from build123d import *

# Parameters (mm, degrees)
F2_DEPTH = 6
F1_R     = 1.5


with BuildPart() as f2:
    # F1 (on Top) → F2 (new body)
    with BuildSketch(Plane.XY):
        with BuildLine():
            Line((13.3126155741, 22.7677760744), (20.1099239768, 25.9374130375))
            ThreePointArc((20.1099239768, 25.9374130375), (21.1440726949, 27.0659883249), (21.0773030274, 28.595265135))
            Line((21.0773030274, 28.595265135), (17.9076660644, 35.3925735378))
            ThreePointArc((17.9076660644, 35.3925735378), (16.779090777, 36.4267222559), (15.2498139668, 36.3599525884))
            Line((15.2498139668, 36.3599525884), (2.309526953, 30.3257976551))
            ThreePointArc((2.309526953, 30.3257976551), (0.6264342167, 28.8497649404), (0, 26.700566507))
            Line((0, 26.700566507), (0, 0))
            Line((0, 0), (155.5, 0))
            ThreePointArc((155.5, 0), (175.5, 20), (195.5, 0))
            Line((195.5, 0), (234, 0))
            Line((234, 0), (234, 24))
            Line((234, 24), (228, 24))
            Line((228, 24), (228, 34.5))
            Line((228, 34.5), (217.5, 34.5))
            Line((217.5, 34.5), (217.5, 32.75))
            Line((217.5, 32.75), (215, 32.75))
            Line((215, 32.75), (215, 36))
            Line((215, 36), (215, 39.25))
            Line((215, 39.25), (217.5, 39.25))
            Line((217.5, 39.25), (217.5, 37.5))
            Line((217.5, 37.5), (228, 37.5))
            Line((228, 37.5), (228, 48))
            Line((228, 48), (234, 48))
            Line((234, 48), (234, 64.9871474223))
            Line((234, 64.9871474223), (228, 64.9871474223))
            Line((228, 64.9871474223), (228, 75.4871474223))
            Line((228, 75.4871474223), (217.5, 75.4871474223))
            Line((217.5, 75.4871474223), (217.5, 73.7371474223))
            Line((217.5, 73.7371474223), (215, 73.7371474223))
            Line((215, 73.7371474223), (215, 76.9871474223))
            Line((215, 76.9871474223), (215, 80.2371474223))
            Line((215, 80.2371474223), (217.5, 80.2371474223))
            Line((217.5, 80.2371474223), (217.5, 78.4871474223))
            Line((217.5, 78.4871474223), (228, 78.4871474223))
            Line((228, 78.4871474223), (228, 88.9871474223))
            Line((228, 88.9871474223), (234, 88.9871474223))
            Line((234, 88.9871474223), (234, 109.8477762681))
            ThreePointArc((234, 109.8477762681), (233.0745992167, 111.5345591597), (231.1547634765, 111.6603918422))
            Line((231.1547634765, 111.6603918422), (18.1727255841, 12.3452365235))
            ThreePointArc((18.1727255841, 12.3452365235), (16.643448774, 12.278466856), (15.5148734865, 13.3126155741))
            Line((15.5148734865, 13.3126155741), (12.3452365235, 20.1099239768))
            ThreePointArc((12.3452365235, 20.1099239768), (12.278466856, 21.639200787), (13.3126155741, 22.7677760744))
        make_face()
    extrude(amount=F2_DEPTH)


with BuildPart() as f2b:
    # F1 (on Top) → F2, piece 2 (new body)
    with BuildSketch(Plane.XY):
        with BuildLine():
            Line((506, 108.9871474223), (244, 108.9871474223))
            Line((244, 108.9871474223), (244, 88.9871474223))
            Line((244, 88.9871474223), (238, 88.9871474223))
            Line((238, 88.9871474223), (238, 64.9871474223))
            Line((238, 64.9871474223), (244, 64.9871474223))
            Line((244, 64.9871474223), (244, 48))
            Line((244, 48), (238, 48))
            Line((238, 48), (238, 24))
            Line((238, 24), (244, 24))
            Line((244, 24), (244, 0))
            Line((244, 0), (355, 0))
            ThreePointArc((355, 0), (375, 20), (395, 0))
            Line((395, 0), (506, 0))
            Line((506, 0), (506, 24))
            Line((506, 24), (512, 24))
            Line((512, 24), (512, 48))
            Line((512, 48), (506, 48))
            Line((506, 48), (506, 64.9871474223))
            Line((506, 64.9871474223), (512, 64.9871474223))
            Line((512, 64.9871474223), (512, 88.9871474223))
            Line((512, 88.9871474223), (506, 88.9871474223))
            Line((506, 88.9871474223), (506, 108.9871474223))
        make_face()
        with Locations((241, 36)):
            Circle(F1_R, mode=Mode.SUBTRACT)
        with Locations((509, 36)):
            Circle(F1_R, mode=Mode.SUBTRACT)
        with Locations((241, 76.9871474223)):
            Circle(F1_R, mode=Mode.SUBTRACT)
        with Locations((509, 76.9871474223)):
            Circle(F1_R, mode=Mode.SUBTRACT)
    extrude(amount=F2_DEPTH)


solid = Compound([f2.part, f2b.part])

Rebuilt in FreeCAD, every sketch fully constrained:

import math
import FreeCAD as App
import Part
import Sketcher

V = App.Vector
Q = App.Units.Quantity

doc = App.newDocument("Part")
body = doc.addObject("PartDesign::Body", "Body")

# Sketch on XY plane
sketch1 = doc.addObject("Sketcher::SketchObject", "Sketch")
body.addObject(sketch1)
sketch1.AttachmentSupport = (doc.XY_Plane, [""])
sketch1.MapMode = "FlatFace"
sketch1.addGeometry([
    Part.LineSegment(V(13.312616, 22.767776, 0), V(20.109924, 25.937413, 0)),  # 0
    Part.ArcOfCircle(Part.Circle(V(19.264687, 27.750029, 0), V(0, 0, 1), 2), math.radians(-65), math.radians(25)),  # 1
    Part.LineSegment(V(21.077303, 28.595265, 0), V(17.907666, 35.392574, 0)),  # 2
    Part.ArcOfCircle(Part.Circle(V(16.09505, 34.547337, 0), V(0, 0, 1), 2), math.radians(25), math.radians(115)),  # 3
    Part.LineSegment(V(15.249814, 36.359953, 0), V(2.309527, 30.325798, 0)),  # 4
    Part.ArcOfCircle(Part.Circle(V(4, 26.700567, 0), V(0, 0, 1), 4), math.radians(115), math.radians(180)),  # 5
    Part.LineSegment(V(0, 26.700567, 0), V(0, 0, 0)),  # 6
    Part.LineSegment(V(0, 0, 0), V(155.5, 0, 0)),  # 7
    Part.ArcOfCircle(Part.Circle(V(175.5, 0, 0), V(0, 0, 1), 20), math.radians(0), math.radians(180)),  # 8
    Part.LineSegment(V(195.5, 0, 0), V(234, 0, 0)),  # 9
    Part.LineSegment(V(234, 0, 0), V(234, 24, 0)),  # 10
    Part.LineSegment(V(234, 24, 0), V(228, 24, 0)),  # 11
    Part.LineSegment(V(228, 24, 0), V(228, 34.5, 0)),  # 12
    Part.LineSegment(V(228, 34.5, 0), V(217.5, 34.5, 0)),  # 13
    Part.LineSegment(V(217.5, 34.5, 0), V(217.5, 32.75, 0)),  # 14
    Part.LineSegment(V(217.5, 32.75, 0), V(215, 32.75, 0)),  # 15
    Part.LineSegment(V(215, 32.75, 0), V(215, 39.25, 0)),  # 16
    Part.LineSegment(V(215, 39.25, 0), V(217.5, 39.25, 0)),  # 17
    Part.LineSegment(V(217.5, 39.25, 0), V(217.5, 37.5, 0)),  # 18
    Part.LineSegment(V(217.5, 37.5, 0), V(228, 37.5, 0)),  # 19
    Part.LineSegment(V(228, 37.5, 0), V(228, 48, 0)),  # 20
    Part.LineSegment(V(228, 48, 0), V(234, 48, 0)),  # 21
    Part.LineSegment(V(234, 48, 0), V(234, 64.987147, 0)),  # 22
    Part.LineSegment(V(234, 64.987147, 0), V(228, 64.987147, 0)),  # 23
    Part.LineSegment(V(228, 64.987147, 0), V(228, 75.487147, 0)),  # 24
    Part.LineSegment(V(228, 75.487147, 0), V(217.5, 75.487147, 0)),  # 25
    Part.LineSegment(V(217.5, 75.487147, 0), V(217.5, 73.737147, 0)),  # 26
    Part.LineSegment(V(217.5, 73.737147, 0), V(215, 73.737147, 0)),  # 27
    Part.LineSegment(V(215, 73.737147, 0), V(215, 80.237147, 0)),  # 28
    Part.LineSegment(V(215, 80.237147, 0), V(217.5, 80.237147, 0)),  # 29
    Part.LineSegment(V(217.5, 80.237147, 0), V(217.5, 78.487147, 0)),  # 30
    Part.LineSegment(V(217.5, 78.487147, 0), V(228, 78.487147, 0)),  # 31
    Part.LineSegment(V(228, 78.487147, 0), V(228, 88.987147, 0)),  # 32
    Part.LineSegment(V(228, 88.987147, 0), V(234, 88.987147, 0)),  # 33
    Part.LineSegment(V(234, 88.987147, 0), V(234, 109.847776, 0)),  # 34
    Part.ArcOfCircle(Part.Circle(V(232, 109.847776, 0), V(0, 0, 1), 2), math.radians(0), math.radians(115)),  # 35
    Part.LineSegment(V(231.154763, 111.660392, 0), V(18.172726, 12.345237, 0)),  # 36
    Part.ArcOfCircle(Part.Circle(V(17.327489, 14.157852, 0), V(0, 0, 1), 2), math.radians(-155), math.radians(-65)),  # 37
    Part.LineSegment(V(15.514873, 13.312616, 0), V(12.345237, 20.109924, 0)),  # 38
    Part.ArcOfCircle(Part.Circle(V(14.157852, 20.955161, 0), V(0, 0, 1), 2), math.radians(115), math.radians(205)),  # 39
], False)
sketch1.addConstraint([
    Sketcher.Constraint("Tangent", 0, 2, 1, 1),
    Sketcher.Constraint("Tangent", 1, 2, 2, 1),
    Sketcher.Constraint("Tangent", 2, 2, 3, 1),
    Sketcher.Constraint("Tangent", 3, 2, 4, 1),
    Sketcher.Constraint("Tangent", 4, 2, 5, 1),
    Sketcher.Constraint("Tangent", 5, 2, 6, 1),
    Sketcher.Constraint("Coincident", 6, 2, 7, 1),
    Sketcher.Constraint("Coincident", 7, 2, 8, 2),
    Sketcher.Constraint("Coincident", 8, 1, 9, 1),
    Sketcher.Constraint("Coincident", 9, 2, 10, 1),
    Sketcher.Constraint("Coincident", 10, 2, 11, 1),
    Sketcher.Constraint("Coincident", 11, 2, 12, 1),
    Sketcher.Constraint("Coincident", 12, 2, 13, 1),
    Sketcher.Constraint("Coincident", 13, 2, 14, 1),
    Sketcher.Constraint("Coincident", 14, 2, 15, 1),
    Sketcher.Constraint("Coincident", 15, 2, 16, 1),
    Sketcher.Constraint("Coincident", 16, 2, 17, 1),
    Sketcher.Constraint("Coincident", 17, 2, 18, 1),
    Sketcher.Constraint("Coincident", 18, 2, 19, 1),
    Sketcher.Constraint("Coincident", 19, 2, 20, 1),
    Sketcher.Constraint("Coincident", 20, 2, 21, 1),
    Sketcher.Constraint("Coincident", 21, 2, 22, 1),
    Sketcher.Constraint("Coincident", 22, 2, 23, 1),
    Sketcher.Constraint("Coincident", 23, 2, 24, 1),
    Sketcher.Constraint("Coincident", 24, 2, 25, 1),
    Sketcher.Constraint("Coincident", 25, 2, 26, 1),
    Sketcher.Constraint("Coincident", 26, 2, 27, 1),
    Sketcher.Constraint("Coincident", 27, 2, 28, 1),
    Sketcher.Constraint("Coincident", 28, 2, 29, 1),
    Sketcher.Constraint("Coincident", 29, 2, 30, 1),
    Sketcher.Constraint("Coincident", 30, 2, 31, 1),
    Sketcher.Constraint("Coincident", 31, 2, 32, 1),
    Sketcher.Constraint("Coincident", 32, 2, 33, 1),
    Sketcher.Constraint("Coincident", 33, 2, 34, 1),
    Sketcher.Constraint("Tangent", 34, 2, 35, 1),
    Sketcher.Constraint("Tangent", 35, 2, 36, 1),
    Sketcher.Constraint("Tangent", 36, 2, 37, 2),
    Sketcher.Constraint("Tangent", 37, 1, 38, 1),
    Sketcher.Constraint("Tangent", 38, 2, 39, 2),
    Sketcher.Constraint("Tangent", 39, 1, 0, 1),
    Sketcher.Constraint("Vertical", 6),
    Sketcher.Constraint("Horizontal", 7),
    Sketcher.Constraint("Horizontal", 9),
    Sketcher.Constraint("Vertical", 10),
    Sketcher.Constraint("Horizontal", 11),
    Sketcher.Constraint("Vertical", 12),
    Sketcher.Constraint("Horizontal", 13),
    Sketcher.Constraint("Vertical", 14),
    Sketcher.Constraint("Horizontal", 15),
    Sketcher.Constraint("Vertical", 16),
    Sketcher.Constraint("Horizontal", 17),
    Sketcher.Constraint("Vertical", 18),
    Sketcher.Constraint("Horizontal", 19),
    Sketcher.Constraint("Vertical", 20),
    Sketcher.Constraint("Horizontal", 21),
    Sketcher.Constraint("Vertical", 22),
    Sketcher.Constraint("Horizontal", 23),
    Sketcher.Constraint("Vertical", 24),
    Sketcher.Constraint("Horizontal", 25),
    Sketcher.Constraint("Vertical", 26),
    Sketcher.Constraint("Horizontal", 27),
    Sketcher.Constraint("Vertical", 28),
    Sketcher.Constraint("Horizontal", 29),
    Sketcher.Constraint("Vertical", 30),
    Sketcher.Constraint("Horizontal", 31),
    Sketcher.Constraint("Vertical", 32),
    Sketcher.Constraint("Horizontal", 33),
    Sketcher.Constraint("Vertical", 34),
    Sketcher.Constraint("Coincident", 6, 2, -1, 1),
    Sketcher.Constraint("Equal", 1, 3),
    Sketcher.Constraint("Equal", 3, 35),
    Sketcher.Constraint("Equal", 35, 37),
    Sketcher.Constraint("Equal", 37, 39),
    Sketcher.Constraint("PointOnObject", 8, 3, -1),
    Sketcher.Constraint("PointOnObject", 8, 1, -1),
    Sketcher.Constraint("Perpendicular", 0, 2),
    Sketcher.Constraint("Perpendicular", 2, 4),
    Sketcher.Constraint("Parallel", 4, 36),
    Sketcher.Constraint("Perpendicular", 36, 38),
    Sketcher.Constraint("Vertical", 14, 2, 17, 2),
    Sketcher.Constraint("Vertical", 12, 2, 19, 2),
    Sketcher.Constraint("Vertical", 10, 2, 21, 2),
    Sketcher.Constraint("Vertical", 20, 2, 23, 2),
    Sketcher.Constraint("Vertical", 18, 2, 25, 2),
    Sketcher.Constraint("Vertical", 16, 2, 27, 2),
    Sketcher.Constraint("Vertical", 26, 2, 29, 2),
    Sketcher.Constraint("Vertical", 24, 2, 31, 2),
    Sketcher.Constraint("Vertical", 22, 2, 33, 2),
    Sketcher.Constraint("Equal", 31, 12),
    Sketcher.Constraint("Equal", 14, 18),
    Sketcher.Constraint("Equal", 12, 20),
    Sketcher.Constraint("Equal", 20, 24),
    Sketcher.Constraint("Equal", 18, 26),
    Sketcher.Constraint("Equal", 16, 28),
    Sketcher.Constraint("Equal", 26, 30),
    Sketcher.Constraint("Equal", 24, 32),
    Sketcher.Constraint("Equal", 0, 2),
    Sketcher.Constraint("Equal", 2, 38),
    Sketcher.Constraint("Radius", 1, 2.0),
    Sketcher.Constraint("Radius", 5, 4.0),
    Sketcher.Constraint("Radius", 8, 20.0),
    Sketcher.Constraint("DistanceX", 11, 2, 11, 1, 6.0),
    Sketcher.Constraint("DistanceY", 10, 1, 10, 2, 24.0),
    Sketcher.Constraint("Angle", 0, Q("25 deg")),
    Sketcher.Constraint("DistanceX", 7, 1, 7, 2, 155.5),
    Sketcher.Constraint("DistanceX", 9, 1, 9, 2, 38.5),
    Sketcher.Constraint("DistanceX", 13, 2, 13, 1, 10.5),
    Sketcher.Constraint("DistanceX", 15, 2, 15, 1, 2.5),
    Sketcher.Constraint("DistanceY", 16, 1, 16, 2, 6.5),
    Sketcher.Constraint("DistanceY", -1, 1, 20, 2, 48.0),
    Sketcher.Constraint("Distance", 0, 7.5),
    Sketcher.Constraint("DistanceY", 34, 1, 34, 2, 20.860629),
    Sketcher.Constraint("DistanceY", 6, 2, 6, 1, 26.700567),
    Sketcher.Constraint("DistanceY", -1, 1, 1, 3, 27.750029),
])
pad1 = doc.addObject("PartDesign::Pad", "Pad")
body.addObject(pad1)
pad1.Profile = sketch1
pad1.Length = 6
body2 = doc.addObject("PartDesign::Body", "Body001")

# Sketch on XY plane
sketch2 = doc.addObject("Sketcher::SketchObject", "Sketch001")
body2.addObject(sketch2)
sketch2.AttachmentSupport = (doc.getObject("XY_Plane001"), [""])
sketch2.MapMode = "FlatFace"
sketch2.addGeometry([
    Part.LineSegment(V(506, 108.987147, 0), V(244, 108.987147, 0)),  # 0
    Part.LineSegment(V(244, 108.987147, 0), V(244, 88.987147, 0)),  # 1
    Part.LineSegment(V(244, 88.987147, 0), V(238, 88.987147, 0)),  # 2
    Part.LineSegment(V(238, 88.987147, 0), V(238, 64.987147, 0)),  # 3
    Part.LineSegment(V(238, 64.987147, 0), V(244, 64.987147, 0)),  # 4
    Part.LineSegment(V(244, 64.987147, 0), V(244, 48, 0)),  # 5
    Part.LineSegment(V(244, 48, 0), V(238, 48, 0)),  # 6
    Part.LineSegment(V(238, 48, 0), V(238, 24, 0)),  # 7
    Part.LineSegment(V(238, 24, 0), V(244, 24, 0)),  # 8
    Part.LineSegment(V(244, 24, 0), V(244, 0, 0)),  # 9
    Part.LineSegment(V(244, 0, 0), V(355, 0, 0)),  # 10
    Part.ArcOfCircle(Part.Circle(V(375, 0, 0), V(0, 0, 1), 20), math.radians(0), math.radians(180)),  # 11
    Part.LineSegment(V(395, 0, 0), V(506, 0, 0)),  # 12
    Part.LineSegment(V(506, 0, 0), V(506, 24, 0)),  # 13
    Part.LineSegment(V(506, 24, 0), V(512, 24, 0)),  # 14
    Part.LineSegment(V(512, 24, 0), V(512, 48, 0)),  # 15
    Part.LineSegment(V(512, 48, 0), V(506, 48, 0)),  # 16
    Part.LineSegment(V(506, 48, 0), V(506, 64.987147, 0)),  # 17
    Part.LineSegment(V(506, 64.987147, 0), V(512, 64.987147, 0)),  # 18
    Part.LineSegment(V(512, 64.987147, 0), V(512, 88.987147, 0)),  # 19
    Part.LineSegment(V(512, 88.987147, 0), V(506, 88.987147, 0)),  # 20
    Part.LineSegment(V(506, 88.987147, 0), V(506, 108.987147, 0)),  # 21
    Part.Circle(V(241, 36, 0), V(0, 0, 1), 1.5),  # 22
    Part.Circle(V(509, 36, 0), V(0, 0, 1), 1.5),  # 23
    Part.Circle(V(241, 76.987147, 0), V(0, 0, 1), 1.5),  # 24
    Part.Circle(V(509, 76.987147, 0), V(0, 0, 1), 1.5),  # 25
], False)
sketch2.addConstraint([
    Sketcher.Constraint("Coincident", 0, 2, 1, 1),
    Sketcher.Constraint("Coincident", 1, 2, 2, 1),
    Sketcher.Constraint("Coincident", 2, 2, 3, 1),
    Sketcher.Constraint("Coincident", 3, 2, 4, 1),
    Sketcher.Constraint("Coincident", 4, 2, 5, 1),
    Sketcher.Constraint("Coincident", 5, 2, 6, 1),
    Sketcher.Constraint("Coincident", 6, 2, 7, 1),
    Sketcher.Constraint("Coincident", 7, 2, 8, 1),
    Sketcher.Constraint("Coincident", 8, 2, 9, 1),
    Sketcher.Constraint("Coincident", 9, 2, 10, 1),
    Sketcher.Constraint("Coincident", 10, 2, 11, 2),
    Sketcher.Constraint("Coincident", 11, 1, 12, 1),
    Sketcher.Constraint("Coincident", 12, 2, 13, 1),
    Sketcher.Constraint("Coincident", 13, 2, 14, 1),
    Sketcher.Constraint("Coincident", 14, 2, 15, 1),
    Sketcher.Constraint("Coincident", 15, 2, 16, 1),
    Sketcher.Constraint("Coincident", 16, 2, 17, 1),
    Sketcher.Constraint("Coincident", 17, 2, 18, 1),
    Sketcher.Constraint("Coincident", 18, 2, 19, 1),
    Sketcher.Constraint("Coincident", 19, 2, 20, 1),
    Sketcher.Constraint("Coincident", 20, 2, 21, 1),
    Sketcher.Constraint("Coincident", 21, 2, 0, 1),
    Sketcher.Constraint("Horizontal", 0),
    Sketcher.Constraint("Vertical", 1),
    Sketcher.Constraint("Horizontal", 2),
    Sketcher.Constraint("Vertical", 3),
    Sketcher.Constraint("Horizontal", 4),
    Sketcher.Constraint("Vertical", 5),
    Sketcher.Constraint("Horizontal", 6),
    Sketcher.Constraint("Vertical", 7),
    Sketcher.Constraint("Horizontal", 8),
    Sketcher.Constraint("Vertical", 9),
    Sketcher.Constraint("Horizontal", 10),
    Sketcher.Constraint("Horizontal", 12),
    Sketcher.Constraint("Vertical", 13),
    Sketcher.Constraint("Horizontal", 14),
    Sketcher.Constraint("Vertical", 15),
    Sketcher.Constraint("Horizontal", 16),
    Sketcher.Constraint("Vertical", 17),
    Sketcher.Constraint("Horizontal", 18),
    Sketcher.Constraint("Vertical", 19),
    Sketcher.Constraint("Horizontal", 20),
    Sketcher.Constraint("Vertical", 21),
    Sketcher.Constraint("Equal", 22, 23),
    Sketcher.Constraint("Equal", 23, 24),
    Sketcher.Constraint("Equal", 24, 25),
    Sketcher.Constraint("PointOnObject", 11, 3, -1),
    Sketcher.Constraint("PointOnObject", 9, 2, -1),
    Sketcher.Constraint("PointOnObject", 11, 1, -1),
    Sketcher.Constraint("Horizontal", 22, 3, 23, 3),
    Sketcher.Constraint("Horizontal", 24, 3, 25, 3),
    Sketcher.Constraint("Horizontal", 8, 2, 13, 2),
    Sketcher.Constraint("Horizontal", 6, 2, 15, 2),
    Sketcher.Constraint("Horizontal", 4, 2, 17, 2),
    Sketcher.Constraint("Horizontal", 2, 2, 19, 2),
    Sketcher.Constraint("Vertical", 22, 3, 24, 3),
    Sketcher.Constraint("Vertical", 23, 3, 25, 3),
    Sketcher.Constraint("Vertical", 1, 2, 4, 2),
    Sketcher.Constraint("Vertical", 3, 2, 6, 2),
    Sketcher.Constraint("Vertical", 5, 2, 8, 2),
    Sketcher.Constraint("Vertical", 13, 2, 16, 2),
    Sketcher.Constraint("Vertical", 15, 2, 18, 2),
    Sketcher.Constraint("Vertical", 17, 2, 20, 2),
    Sketcher.Constraint("Equal", 10, 12),
    Sketcher.Constraint("Equal", 8, 14),
    Sketcher.Constraint("Equal", 3, 7),
    Sketcher.Constraint("Equal", 7, 9),
    Sketcher.Constraint("Diameter", 22, 3.0),
    Sketcher.Constraint("Radius", 11, 20.0),
    Sketcher.Constraint("DistanceX", 0, 2, 0, 1, 262.0),
    Sketcher.Constraint("DistanceX", 2, 2, 2, 1, 6.0),
    Sketcher.Constraint("DistanceY", 1, 2, 1, 1, 20.0),
    Sketcher.Constraint("DistanceY", 3, 2, 3, 1, 24.0),
    Sketcher.Constraint("DistanceX", -1, 1, 11, 3, 375.0),
    Sketcher.Constraint("DistanceX", -1, 1, 22, 3, 241.0),
    Sketcher.Constraint("DistanceY", -1, 1, 22, 3, 36.0),
    Sketcher.Constraint("DistanceX", -1, 1, 23, 3, 509.0),
    Sketcher.Constraint("DistanceY", 24, 3, 0, 2, 32.0),
    Sketcher.Constraint("DistanceY", 5, 2, 5, 1, 16.987147),
])
pad2 = doc.addObject("PartDesign::Pad", "Pad001")
body2.addObject(pad2)
pad2.Profile = sketch2
pad2.Length = 6

doc.recompute()
